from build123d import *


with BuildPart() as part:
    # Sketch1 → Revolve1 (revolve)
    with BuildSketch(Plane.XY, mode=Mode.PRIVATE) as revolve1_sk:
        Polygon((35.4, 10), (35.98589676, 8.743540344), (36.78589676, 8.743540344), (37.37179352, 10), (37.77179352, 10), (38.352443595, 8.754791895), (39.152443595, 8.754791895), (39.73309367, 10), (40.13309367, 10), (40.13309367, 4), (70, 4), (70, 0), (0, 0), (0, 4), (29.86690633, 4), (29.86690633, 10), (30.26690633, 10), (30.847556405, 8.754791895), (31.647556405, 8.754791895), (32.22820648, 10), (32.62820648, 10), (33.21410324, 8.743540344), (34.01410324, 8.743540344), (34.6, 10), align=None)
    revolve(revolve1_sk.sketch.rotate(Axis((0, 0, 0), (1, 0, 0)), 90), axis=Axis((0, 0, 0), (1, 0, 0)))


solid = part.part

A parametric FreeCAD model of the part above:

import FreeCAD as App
import Part
import Sketcher

V = App.Vector
Q = App.Units.Quantity

doc = App.newDocument("Part")
body = doc.addObject("PartDesign::Body", "Body")

sketch1 = body.newObject("Sketcher::SketchObject", "Sketch")
sketch1.AttachmentSupport = (doc.getObject("XY_Plane"), [""])
sketch1.MapMode = "FlatFace"
sketch1.addGeometry([
    Part.LineSegment(V(35.99, 8.74, 0), V(35.4, 10, 0)),
    Part.LineSegment(V(35.4, 10, 0), V(34.6, 10, 0)),
    Part.LineSegment(V(34.6, 10, 0), V(34.01, 8.74, 0)),
    Part.LineSegment(V(34.01, 8.74, 0), V(33.21, 8.74, 0)),
    Part.LineSegment(V(33.21, 8.74, 0), V(32.63, 10, 0)),
    Part.LineSegment(V(32.63, 10, 0), V(32.23, 10, 0)),
    Part.LineSegment(V(32.23, 10, 0), V(31.65, 8.75, 0)),
    Part.LineSegment(V(31.65, 8.75, 0), V(30.85, 8.75, 0)),
    Part.LineSegment(V(30.85, 8.75, 0), V(30.27, 10, 0)),
    Part.LineSegment(V(30.27, 10, 0), V(29.87, 10, 0)),
    Part.LineSegment(V(29.87, 10, 0), V(29.87, 4, 0)),
    Part.LineSegment(V(29.87, 4, 0), V(0, 4, 0)),
    Part.LineSegment(V(0, 4, 0), V(0, 0, 0)),
    Part.LineSegment(V(0, 0, 0), V(70, 0, 0)),
    Part.LineSegment(V(70, 0, 0), V(70, 4, 0)),
    Part.LineSegment(V(70, 4, 0), V(40.13, 4, 0)),
    Part.LineSegment(V(40.13, 4, 0), V(40.13, 10, 0)),
    Part.LineSegment(V(40.13, 10, 0), V(39.73, 10, 0)),
    Part.LineSegment(V(39.73, 10, 0), V(39.15, 8.75, 0)),
    Part.LineSegment(V(39.15, 8.75, 0), V(38.35, 8.75, 0)),
    Part.LineSegment(V(38.35, 8.75, 0), V(37.77, 10, 0)),
    Part.LineSegment(V(37.77, 10, 0), V(37.37, 10, 0)),
    Part.LineSegment(V(37.37, 10, 0), V(36.79, 8.74, 0)),
    Part.LineSegment(V(36.79, 8.74, 0), V(35.99, 8.74, 0)),
], False)
sketch1.addConstraint([
    Sketcher.Constraint("Coincident", 0, 2, 1, 1),
    Sketcher.Constraint("Coincident", 1, 2, 2, 1),
    Sketcher.Constraint("Coincident", 2, 2, 3, 1),
    Sketcher.Constraint("Coincident", 3, 2, 4, 1),
    Sketcher.Constraint("Coincident", 4, 2, 5, 1),
    Sketcher.Constraint("Coincident", 5, 2, 6, 1),
    Sketcher.Constraint("Coincident", 6, 2, 7, 1),
    Sketcher.Constraint("Coincident", 7, 2, 8, 1),
    Sketcher.Constraint("Coincident", 8, 2, 9, 1),
    Sketcher.Constraint("Coincident", 9, 2, 10, 1),
    Sketcher.Constraint("Coincident", 10, 2, 11, 1),
    Sketcher.Constraint("Coincident", 11, 2, 12, 1),
    Sketcher.Constraint("Coincident", 12, 2, 13, 1),
    Sketcher.Constraint("Coincident", 13, 2, 14, 1),
    Sketcher.Constraint("Coincident", 14, 2, 15, 1),
    Sketcher.Constraint("Coincident", 15, 2, 16, 1),
    Sketcher.Constraint("Coincident", 16, 2, 17, 1),
    Sketcher.Constraint("Coincident", 17, 2, 18, 1),
    Sketcher.Constraint("Coincident", 18, 2, 19, 1),
    Sketcher.Constraint("Coincident", 19, 2, 20, 1),
    Sketcher.Constraint("Coincident", 20, 2, 21, 1),
    Sketcher.Constraint("Coincident", 21, 2, 22, 1),
    Sketcher.Constraint("Coincident", 22, 2, 23, 1),
    Sketcher.Constraint("Coincident", 23, 2, 0, 1),
    Sketcher.Constraint("Horizontal", 1),
    Sketcher.Constraint("Horizontal", 3),
    Sketcher.Constraint("Horizontal", 5),
    Sketcher.Constraint("Horizontal", 7),
    Sketcher.Constraint("Horizontal", 9),
    Sketcher.Constraint("Vertical", 10),
    Sketcher.Constraint("Horizontal", 11),
    Sketcher.Constraint("Vertical", 12),
    Sketcher.Constraint("Horizontal", 13),
    Sketcher.Constraint("Vertical", 14),
    Sketcher.Constraint("Horizontal", 15),
    Sketcher.Constraint("Vertical", 16),
    Sketcher.Constraint("Horizontal", 17),
    Sketcher.Constraint("Horizontal", 19),
    Sketcher.Constraint("Horizontal", 21),
    Sketcher.Constraint("Horizontal", 23),
    Sketcher.Constraint("Coincident", 12, 2, -1, 1),
    Sketcher.Constraint("Parallel", 0, 4),
    Sketcher.Constraint("Parallel", 2, 6),
    Sketcher.Constraint("Parallel", 4, 8),
    Sketcher.Constraint("Parallel", 6, 18),
    Sketcher.Constraint("Parallel", 8, 20),
    Sketcher.Constraint("Parallel", 18, 22),
    Sketcher.Constraint("Horizontal", 1, 2, 4, 2),
    Sketcher.Constraint("Horizontal", 5, 2, 8, 2),
    Sketcher.Constraint("Horizontal", 11, 2, 14, 2),
    Sketcher.Constraint("Horizontal", 9, 2, 16, 2),
    Sketcher.Constraint("Horizontal", 7, 2, 18, 2),
    Sketcher.Constraint("Horizontal", 17, 2, 20, 2),
    Sketcher.Constraint("Horizontal", 3, 2, 22, 2),
    Sketcher.Constraint("Equal", 1, 3),
    Sketcher.Constraint("Equal", 3, 7),
    Sketcher.Constraint("Equal", 5, 9),
    Sketcher.Constraint("Equal", 11, 15),
    Sketcher.Constraint("Equal", 9, 17),
    Sketcher.Constraint("Equal", 7, 19),
    Sketcher.Constraint("Equal", 17, 21),
    Sketcher.Constraint("Equal", 19, 23),
    Sketcher.Constraint("Equal", 0, 2),
    Sketcher.Constraint("DistanceX", 13, 1, 13, 2, Q("70 mm")),
    Sketcher.Constraint("DistanceY", 10, 2, 10, 1, Q("6 mm")),
    Sketcher.Constraint("DistanceY", 12, 2, 12, 1, Q("4 mm")),
    Sketcher.Constraint("Angle", 0, Q("115 deg")),
    Sketcher.Constraint("DistanceX", 1, 2, 1, 1, Q("0.8 mm")),
    Sketcher.Constraint("DistanceX", 5, 2, 5, 1, Q("0.4 mm")),
    Sketcher.Constraint("DistanceX", 8, 2, 5, 2, Q("1.9613 mm")),
    Sketcher.Constraint("Distance", 0, Q("1.38635 mm")),
])
revolution = body.newObject("PartDesign::Revolution", "Revolution")
revolution.Profile = sketch1
revolution.ReferenceAxis = (sketch1, ["H_Axis"])
revolution.Angle = 360

doc.recompute()
